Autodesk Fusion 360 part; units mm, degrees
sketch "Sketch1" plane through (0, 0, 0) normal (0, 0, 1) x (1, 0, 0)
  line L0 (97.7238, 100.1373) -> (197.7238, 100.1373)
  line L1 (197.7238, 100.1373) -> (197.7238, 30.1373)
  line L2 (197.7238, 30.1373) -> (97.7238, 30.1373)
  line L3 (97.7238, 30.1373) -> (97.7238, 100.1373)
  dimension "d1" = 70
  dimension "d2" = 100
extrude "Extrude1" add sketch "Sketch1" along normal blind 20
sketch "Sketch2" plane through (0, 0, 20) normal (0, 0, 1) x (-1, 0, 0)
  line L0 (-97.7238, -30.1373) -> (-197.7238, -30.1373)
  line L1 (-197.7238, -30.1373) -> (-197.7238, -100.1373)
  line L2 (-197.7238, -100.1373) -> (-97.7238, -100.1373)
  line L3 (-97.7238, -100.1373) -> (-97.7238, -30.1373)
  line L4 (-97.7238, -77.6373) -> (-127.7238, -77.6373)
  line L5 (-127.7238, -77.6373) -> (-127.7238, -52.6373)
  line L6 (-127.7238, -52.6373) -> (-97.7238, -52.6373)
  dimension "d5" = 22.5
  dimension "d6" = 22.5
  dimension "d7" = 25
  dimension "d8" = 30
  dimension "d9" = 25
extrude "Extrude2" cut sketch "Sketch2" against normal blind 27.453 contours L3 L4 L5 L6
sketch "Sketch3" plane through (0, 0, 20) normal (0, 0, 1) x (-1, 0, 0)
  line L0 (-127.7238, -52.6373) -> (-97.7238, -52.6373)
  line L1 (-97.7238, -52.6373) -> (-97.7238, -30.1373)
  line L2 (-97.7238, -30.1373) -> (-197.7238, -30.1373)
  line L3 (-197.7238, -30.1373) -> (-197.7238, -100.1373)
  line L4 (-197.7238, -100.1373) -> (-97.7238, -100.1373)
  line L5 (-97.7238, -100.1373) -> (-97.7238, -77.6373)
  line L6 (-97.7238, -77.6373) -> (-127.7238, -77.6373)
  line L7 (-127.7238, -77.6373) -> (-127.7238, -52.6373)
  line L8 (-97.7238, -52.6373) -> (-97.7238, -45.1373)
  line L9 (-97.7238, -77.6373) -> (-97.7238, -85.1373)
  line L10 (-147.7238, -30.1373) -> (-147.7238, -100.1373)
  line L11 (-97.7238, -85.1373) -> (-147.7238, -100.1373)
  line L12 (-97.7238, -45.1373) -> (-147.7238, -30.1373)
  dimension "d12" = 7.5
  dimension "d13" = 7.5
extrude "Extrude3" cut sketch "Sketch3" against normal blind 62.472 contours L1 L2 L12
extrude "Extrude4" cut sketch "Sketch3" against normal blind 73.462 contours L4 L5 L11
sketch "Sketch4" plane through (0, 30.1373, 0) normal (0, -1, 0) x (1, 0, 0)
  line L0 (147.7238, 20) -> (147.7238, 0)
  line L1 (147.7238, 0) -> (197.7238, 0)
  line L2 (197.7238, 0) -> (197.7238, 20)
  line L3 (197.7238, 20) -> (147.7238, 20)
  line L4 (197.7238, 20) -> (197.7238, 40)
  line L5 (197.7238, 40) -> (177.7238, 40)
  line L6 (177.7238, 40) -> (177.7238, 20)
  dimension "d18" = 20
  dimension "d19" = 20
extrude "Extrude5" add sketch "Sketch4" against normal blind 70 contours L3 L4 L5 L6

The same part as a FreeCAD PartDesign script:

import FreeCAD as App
import Part
import Sketcher
Q = App.Units.Quantity


def add_polygon(sketch, points):
    """Adds a closed chain of lines whose ends are joined by coincident constraints."""
    first, n = sketch.GeometryCount, len(points)
    for a, b in zip(points, points[1:] + points[:1]):
        sketch.addGeometry(Part.LineSegment(App.Vector(*a, 0), App.Vector(*b, 0)), False)
    for i in range(n):
        sketch.addConstraint(Sketcher.Constraint("Coincident", first + i, 2, first + (i + 1) % n, 1))

doc = App.newDocument("Part")
body = doc.addObject("PartDesign::Body", "Body")

# Sketch on XY plane
sketch1 = body.newObject("Sketcher::SketchObject", "Sketch")
sketch1.AttachmentSupport = (doc.getObject("XY_Plane"), [""])
sketch1.MapMode = "FlatFace"
add_polygon(sketch1, [(198, 100), (98, 100), (98, 30), (198, 30)])  # lines 0-3
sketch1.addConstraint(Sketcher.Constraint("Horizontal", 0))
sketch1.addConstraint(Sketcher.Constraint("Vertical", 1))
sketch1.addConstraint(Sketcher.Constraint("Horizontal", 2))
sketch1.addConstraint(Sketcher.Constraint("Vertical", 3))
sketch1.addConstraint(Sketcher.Constraint("DistanceX", 0, 2, 0, 1, Q("100 mm")))
sketch1.addConstraint(Sketcher.Constraint("DistanceY", 1, 2, 1, 1, Q("70 mm")))
sketch1.addConstraint(Sketcher.Constraint("DistanceX", -1, 1, 0, 2, Q("97.7238 mm")))
sketch1.addConstraint(Sketcher.Constraint("DistanceY", -1, 1, 0, 2, Q("100.1373 mm")))
pad1 = body.newObject("PartDesign::Pad", "Pad")
pad1.Profile = sketch1
pad1.Length = 20

# Sketch on XY plane
sketch2 = body.newObject("Sketcher::SketchObject", "Sketch001")
sketch2.AttachmentSupport = (doc.getObject("XY_Plane"), [""])
sketch2.MapMode = "FlatFace"
sketch2.AttachmentOffset = App.Placement(App.Vector(0, 0, 20), App.Rotation())
add_polygon(sketch2, [(98, 78), (98, 53), (128, 53), (128, 78)])  # lines 0-3
sketch2.addConstraint(Sketcher.Constraint("Vertical", 0))
sketch2.addConstraint(Sketcher.Constraint("Horizontal", 1))
sketch2.addConstraint(Sketcher.Constraint("Vertical", 2))
sketch2.addConstraint(Sketcher.Constraint("Horizontal", 3))
sketch2.addConstraint(Sketcher.Constraint("DistanceX", 1, 1, 1, 2, Q("30 mm")))
sketch2.addConstraint(Sketcher.Constraint("DistanceY", 0, 2, 0, 1, Q("25 mm")))
sketch2.addConstraint(Sketcher.Constraint("DistanceX", -1, 1, 0, 2, Q("97.7238 mm")))
sketch2.addConstraint(Sketcher.Constraint("DistanceY", -1, 1, 0, 2, Q("52.6373 mm")))
pocket1 = body.newObject("PartDesign::Pocket", "Pocket")
pocket1.Profile = sketch2
pocket1.Length = 27.453

# Sketch on XY plane
sketch3 = body.newObject("Sketcher::SketchObject", "Sketch002")
sketch3.AttachmentSupport = (doc.getObject("XY_Plane"), [""])
sketch3.MapMode = "FlatFace"
sketch3.AttachmentOffset = App.Placement(App.Vector(0, 0, 20), App.Rotation())
add_polygon(sketch3, [(148, 30), (98, 45), (98, 30)])  # lines 0-2
sketch3.addConstraint(Sketcher.Constraint("Vertical", 1))
sketch3.addConstraint(Sketcher.Constraint("Horizontal", 2))
sketch3.addConstraint(Sketcher.Constraint("DistanceX", 2, 1, 2, 2, Q("50 mm")))
sketch3.addConstraint(Sketcher.Constraint("DistanceY", 1, 2, 1, 1, Q("15 mm")))
sketch3.addConstraint(Sketcher.Constraint("DistanceX", -1, 1, 0, 2, Q("97.7238 mm")))
sketch3.addConstraint(Sketcher.Constraint("DistanceY", -1, 1, 0, 2, Q("45.1373 mm")))
pocket2 = body.newObject("PartDesign::Pocket", "Pocket001")
pocket2.Profile = sketch3
pocket2.Length = 62.472

# Sketch on XY plane
sketch4 = body.newObject("Sketcher::SketchObject", "Sketch003")
sketch4.AttachmentSupport = (doc.getObject("XY_Plane"), [""])
sketch4.MapMode = "FlatFace"
sketch4.AttachmentOffset = App.Placement(App.Vector(0, 0, 20), App.Rotation())
add_polygon(sketch4, [(98, 100), (98, 85), (148, 100)])  # lines 0-2
sketch4.addConstraint(Sketcher.Constraint("Vertical", 0))
sketch4.addConstraint(Sketcher.Constraint("Horizontal", 2))
sketch4.addConstraint(Sketcher.Constraint("DistanceX", 2, 2, 2, 1, Q("50 mm")))
sketch4.addConstraint(Sketcher.Constraint("DistanceY", 0, 2, 0, 1, Q("15 mm")))
sketch4.addConstraint(Sketcher.Constraint("DistanceX", -1, 1, 0, 2, Q("97.7238 mm")))
sketch4.addConstraint(Sketcher.Constraint("DistanceY", -1, 1, 0, 2, Q("85.1373 mm")))
pocket3 = body.newObject("PartDesign::Pocket", "Pocket002")
pocket3.Profile = sketch4
pocket3.Length = 73.462

# Sketch on XZ plane
sketch5 = body.newObject("Sketcher::SketchObject", "Sketch004")
sketch5.AttachmentSupport = (doc.getObject("XZ_Plane"), [""])
sketch5.MapMode = "FlatFace"
sketch5.AttachmentOffset = App.Placement(App.Vector(0, 0, -30.1373), App.Rotation())
add_polygon(sketch5, [(178, 40), (178, 20), (198, 20), (198, 40)])  # lines 0-3
sketch5.addConstraint(Sketcher.Constraint("Vertical", 0))
sketch5.addConstraint(Sketcher.Constraint("Horizontal", 1))
sketch5.addConstraint(Sketcher.Constraint("Vertical", 2))
sketch5.addConstraint(Sketcher.Constraint("Horizontal", 3))
sketch5.addConstraint(Sketcher.Constraint("Equal", 3, 0))
sketch5.addConstraint(Sketcher.Constraint("DistanceX", 1, 1, 1, 2, Q("20 mm")))
sketch5.addConstraint(Sketcher.Constraint("DistanceY", -1, 1, 0, 2, Q("20 mm")))
sketch5.addConstraint(Sketcher.Constraint("DistanceX", -1, 1, 0, 2, Q("177.7238 mm")))
pad2 = body.newObject("PartDesign::Pad", "Pad001")
pad2.Profile = sketch5
pad2.Length = 70
pad2.Reversed = True

doc.recompute()
